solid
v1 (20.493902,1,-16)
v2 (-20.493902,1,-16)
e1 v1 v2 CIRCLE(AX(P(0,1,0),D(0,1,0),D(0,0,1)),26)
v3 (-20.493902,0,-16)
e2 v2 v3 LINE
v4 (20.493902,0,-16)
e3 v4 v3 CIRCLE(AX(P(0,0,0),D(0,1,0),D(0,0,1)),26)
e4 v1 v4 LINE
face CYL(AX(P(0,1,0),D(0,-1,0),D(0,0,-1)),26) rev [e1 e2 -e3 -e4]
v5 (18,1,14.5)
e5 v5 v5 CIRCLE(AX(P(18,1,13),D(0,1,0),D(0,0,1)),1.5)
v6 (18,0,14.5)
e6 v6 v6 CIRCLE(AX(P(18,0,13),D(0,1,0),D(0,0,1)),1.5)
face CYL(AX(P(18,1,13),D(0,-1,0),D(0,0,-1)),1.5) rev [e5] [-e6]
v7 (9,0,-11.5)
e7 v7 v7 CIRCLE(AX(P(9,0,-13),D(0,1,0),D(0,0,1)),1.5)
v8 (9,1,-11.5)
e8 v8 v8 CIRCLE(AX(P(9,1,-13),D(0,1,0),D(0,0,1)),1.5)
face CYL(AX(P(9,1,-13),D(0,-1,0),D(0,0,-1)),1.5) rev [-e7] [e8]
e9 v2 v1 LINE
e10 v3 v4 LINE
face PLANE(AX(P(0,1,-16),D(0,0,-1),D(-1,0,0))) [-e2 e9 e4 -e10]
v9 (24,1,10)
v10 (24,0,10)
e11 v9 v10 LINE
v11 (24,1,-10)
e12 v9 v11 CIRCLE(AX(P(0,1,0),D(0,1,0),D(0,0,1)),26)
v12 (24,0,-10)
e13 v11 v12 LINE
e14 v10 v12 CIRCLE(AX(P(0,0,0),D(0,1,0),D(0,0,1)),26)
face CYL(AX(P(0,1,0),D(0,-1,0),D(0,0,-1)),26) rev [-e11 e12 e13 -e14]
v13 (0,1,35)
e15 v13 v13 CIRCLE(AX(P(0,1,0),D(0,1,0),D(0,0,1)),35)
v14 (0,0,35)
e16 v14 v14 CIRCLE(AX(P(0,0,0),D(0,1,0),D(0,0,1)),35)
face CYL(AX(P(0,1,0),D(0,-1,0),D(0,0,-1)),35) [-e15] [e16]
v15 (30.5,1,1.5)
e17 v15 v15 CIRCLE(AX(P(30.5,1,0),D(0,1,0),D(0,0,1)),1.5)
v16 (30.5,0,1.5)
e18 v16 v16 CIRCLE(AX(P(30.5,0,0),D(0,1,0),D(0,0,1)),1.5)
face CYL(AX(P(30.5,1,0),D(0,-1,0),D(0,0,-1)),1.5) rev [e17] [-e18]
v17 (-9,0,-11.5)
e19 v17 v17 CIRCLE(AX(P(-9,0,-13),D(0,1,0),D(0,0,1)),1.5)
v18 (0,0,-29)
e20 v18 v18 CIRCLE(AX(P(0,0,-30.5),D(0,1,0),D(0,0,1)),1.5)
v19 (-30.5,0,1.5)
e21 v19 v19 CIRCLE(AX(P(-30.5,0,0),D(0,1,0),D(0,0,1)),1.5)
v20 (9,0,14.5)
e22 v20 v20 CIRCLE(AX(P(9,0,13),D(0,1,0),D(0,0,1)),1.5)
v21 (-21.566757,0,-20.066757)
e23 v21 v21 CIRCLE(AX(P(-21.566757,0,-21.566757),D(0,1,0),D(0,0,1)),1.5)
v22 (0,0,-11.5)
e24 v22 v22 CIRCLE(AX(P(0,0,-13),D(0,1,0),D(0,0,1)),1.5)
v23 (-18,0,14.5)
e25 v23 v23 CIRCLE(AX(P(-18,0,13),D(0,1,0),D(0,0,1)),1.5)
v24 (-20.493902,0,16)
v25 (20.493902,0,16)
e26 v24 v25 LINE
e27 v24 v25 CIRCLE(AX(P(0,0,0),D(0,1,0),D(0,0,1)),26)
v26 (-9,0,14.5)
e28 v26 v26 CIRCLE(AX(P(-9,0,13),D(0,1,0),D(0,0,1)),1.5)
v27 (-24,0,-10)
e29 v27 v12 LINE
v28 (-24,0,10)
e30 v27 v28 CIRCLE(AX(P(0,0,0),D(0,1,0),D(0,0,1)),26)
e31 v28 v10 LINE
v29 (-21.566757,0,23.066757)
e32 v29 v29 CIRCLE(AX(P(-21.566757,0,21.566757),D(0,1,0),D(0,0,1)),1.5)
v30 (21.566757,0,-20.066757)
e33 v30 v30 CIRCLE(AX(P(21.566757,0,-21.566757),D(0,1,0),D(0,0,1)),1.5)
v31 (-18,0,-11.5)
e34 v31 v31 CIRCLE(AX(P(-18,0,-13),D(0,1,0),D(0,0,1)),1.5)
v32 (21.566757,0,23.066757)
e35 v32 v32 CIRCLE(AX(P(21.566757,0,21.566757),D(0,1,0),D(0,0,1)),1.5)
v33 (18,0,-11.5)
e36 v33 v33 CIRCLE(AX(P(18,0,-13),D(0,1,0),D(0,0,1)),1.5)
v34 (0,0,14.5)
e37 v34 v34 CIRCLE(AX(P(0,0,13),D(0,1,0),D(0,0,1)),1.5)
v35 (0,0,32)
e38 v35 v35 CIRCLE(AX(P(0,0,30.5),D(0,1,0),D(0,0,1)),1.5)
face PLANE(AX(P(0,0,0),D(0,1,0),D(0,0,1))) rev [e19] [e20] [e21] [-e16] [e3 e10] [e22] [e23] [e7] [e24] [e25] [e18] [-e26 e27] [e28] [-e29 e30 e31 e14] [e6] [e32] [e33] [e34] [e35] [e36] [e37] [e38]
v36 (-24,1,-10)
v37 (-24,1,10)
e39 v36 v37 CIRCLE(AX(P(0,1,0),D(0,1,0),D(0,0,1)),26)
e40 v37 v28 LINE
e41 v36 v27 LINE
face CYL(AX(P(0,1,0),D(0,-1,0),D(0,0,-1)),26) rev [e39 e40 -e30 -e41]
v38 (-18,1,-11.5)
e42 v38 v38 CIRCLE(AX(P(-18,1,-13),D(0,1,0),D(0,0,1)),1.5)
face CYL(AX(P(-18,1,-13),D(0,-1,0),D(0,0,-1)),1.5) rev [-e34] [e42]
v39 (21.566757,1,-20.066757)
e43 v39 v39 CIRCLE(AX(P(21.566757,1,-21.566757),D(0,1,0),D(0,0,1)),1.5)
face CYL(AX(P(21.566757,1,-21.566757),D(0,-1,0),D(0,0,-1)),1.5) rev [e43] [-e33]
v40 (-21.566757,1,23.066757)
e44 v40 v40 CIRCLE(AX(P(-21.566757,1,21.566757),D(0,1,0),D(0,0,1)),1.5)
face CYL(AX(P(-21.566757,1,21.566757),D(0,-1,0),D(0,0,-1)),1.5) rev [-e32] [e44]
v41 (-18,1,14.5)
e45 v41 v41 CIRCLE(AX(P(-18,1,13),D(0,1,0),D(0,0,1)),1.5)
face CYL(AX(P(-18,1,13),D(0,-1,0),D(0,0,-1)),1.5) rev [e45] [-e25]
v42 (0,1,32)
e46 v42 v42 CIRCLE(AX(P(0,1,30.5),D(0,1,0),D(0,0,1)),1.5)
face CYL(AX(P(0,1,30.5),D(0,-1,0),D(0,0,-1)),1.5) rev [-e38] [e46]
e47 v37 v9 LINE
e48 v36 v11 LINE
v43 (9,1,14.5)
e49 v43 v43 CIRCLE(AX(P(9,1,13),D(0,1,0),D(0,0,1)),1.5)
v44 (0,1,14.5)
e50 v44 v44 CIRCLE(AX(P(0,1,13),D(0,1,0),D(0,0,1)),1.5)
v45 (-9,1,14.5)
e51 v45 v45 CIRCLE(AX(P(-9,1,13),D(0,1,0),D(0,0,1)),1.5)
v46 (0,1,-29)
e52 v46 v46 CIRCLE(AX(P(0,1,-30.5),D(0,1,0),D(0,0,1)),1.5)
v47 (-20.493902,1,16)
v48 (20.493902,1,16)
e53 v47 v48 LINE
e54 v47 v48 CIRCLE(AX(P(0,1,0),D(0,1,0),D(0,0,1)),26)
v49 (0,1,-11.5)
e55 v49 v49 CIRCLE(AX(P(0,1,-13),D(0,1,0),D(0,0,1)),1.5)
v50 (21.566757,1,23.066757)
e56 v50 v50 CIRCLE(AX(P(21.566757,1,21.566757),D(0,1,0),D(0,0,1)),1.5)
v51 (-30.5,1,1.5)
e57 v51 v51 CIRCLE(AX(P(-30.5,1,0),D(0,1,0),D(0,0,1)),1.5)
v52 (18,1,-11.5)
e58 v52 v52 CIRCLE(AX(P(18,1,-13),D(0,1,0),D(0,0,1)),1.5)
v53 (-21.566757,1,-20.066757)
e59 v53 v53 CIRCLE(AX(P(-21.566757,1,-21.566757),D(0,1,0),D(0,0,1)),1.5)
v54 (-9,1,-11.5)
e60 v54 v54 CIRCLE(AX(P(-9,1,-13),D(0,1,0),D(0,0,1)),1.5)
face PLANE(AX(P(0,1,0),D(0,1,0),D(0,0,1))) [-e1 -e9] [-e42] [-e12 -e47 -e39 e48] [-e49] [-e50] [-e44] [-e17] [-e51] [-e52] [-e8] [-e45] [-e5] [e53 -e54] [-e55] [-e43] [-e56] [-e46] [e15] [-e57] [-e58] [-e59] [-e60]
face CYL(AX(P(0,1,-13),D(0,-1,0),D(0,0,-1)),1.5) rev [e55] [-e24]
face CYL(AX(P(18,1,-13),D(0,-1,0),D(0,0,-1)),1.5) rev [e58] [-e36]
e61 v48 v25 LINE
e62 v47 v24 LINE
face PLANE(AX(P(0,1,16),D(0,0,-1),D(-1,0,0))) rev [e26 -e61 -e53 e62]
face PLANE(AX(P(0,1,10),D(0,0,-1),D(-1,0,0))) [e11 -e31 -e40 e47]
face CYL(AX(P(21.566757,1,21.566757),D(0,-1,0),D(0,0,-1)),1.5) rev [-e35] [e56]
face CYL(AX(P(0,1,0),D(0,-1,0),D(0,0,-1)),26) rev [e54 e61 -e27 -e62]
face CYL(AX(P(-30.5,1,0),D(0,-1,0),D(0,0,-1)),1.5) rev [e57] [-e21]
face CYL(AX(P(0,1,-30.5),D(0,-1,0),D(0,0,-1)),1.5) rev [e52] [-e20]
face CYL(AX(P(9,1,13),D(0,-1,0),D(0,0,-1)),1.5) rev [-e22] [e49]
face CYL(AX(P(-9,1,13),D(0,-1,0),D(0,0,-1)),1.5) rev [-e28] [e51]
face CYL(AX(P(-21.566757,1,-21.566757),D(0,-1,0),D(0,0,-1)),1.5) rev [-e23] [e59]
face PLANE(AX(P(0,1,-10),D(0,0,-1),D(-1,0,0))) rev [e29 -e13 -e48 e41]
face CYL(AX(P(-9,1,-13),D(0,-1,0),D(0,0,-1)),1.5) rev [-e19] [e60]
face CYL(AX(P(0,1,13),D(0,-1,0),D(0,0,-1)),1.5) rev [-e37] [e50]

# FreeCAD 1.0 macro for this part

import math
import FreeCAD as App
import Part
import Sketcher
from FreeCAD import Vector

doc = App.newDocument("Part")
body = doc.addObject("PartDesign::Body", "Body")

# Sketch on XZ plane
sketch1 = body.newObject("Sketcher::SketchObject", "Sketch")
sketch1.AttachmentSupport = (doc.getObject("XZ_Plane"), [""])
sketch1.MapMode = "FlatFace"
sketch1.addGeometry([
    Part.Circle(Vector(0, 0, 0), Vector(0, 0, 1), 35),  # 0
    Part.Circle(Vector(-21.566757, -21.566757, 0), Vector(0, 0, 1), 1.5),  # 1
    Part.Circle(Vector(-18, -13, 0), Vector(0, 0, 1), 1.5),  # 2
    Part.Circle(Vector(0, -30.5, 0), Vector(0, 0, 1), 1.5),  # 3
    Part.LineSegment(Vector(20.493902, -16, 0), Vector(-20.493902, -16, 0)),  # 4
    Part.ArcOfCircle(Part.Circle(Vector(0, 0, 0), Vector(0, 0, 1), 26), math.radians(-142.020128), math.radians(-37.979872)),  # 5
    Part.Circle(Vector(-9, -13, 0), Vector(0, 0, 1), 1.5),  # 6
    Part.Circle(Vector(0, -13, 0), Vector(0, 0, 1), 1.5),  # 7
    Part.Circle(Vector(-30.5, 0, 0), Vector(0, 0, 1), 1.5),  # 8
    Part.Circle(Vector(-18, 13, 0), Vector(0, 0, 1), 1.5),  # 9
    Part.Circle(Vector(-21.566757, 21.566757, 0), Vector(0, 0, 1), 1.5),  # 10
    Part.Circle(Vector(-9, 13, 0), Vector(0, 0, 1), 1.5),  # 11
    Part.LineSegment(Vector(24, 10, 0), Vector(-24, 10, 0)),  # 12
    Part.ArcOfCircle(Part.Circle(Vector(0, 0, 0), Vector(0, 0, 1), 26), math.radians(157.380135), math.radians(202.619865)),  # 13
    Part.LineSegment(Vector(-24, -10, 0), Vector(24, -10, 0)),  # 14
    Part.ArcOfCircle(Part.Circle(Vector(0, 0, 0), Vector(0, 0, 1), 26), math.radians(-22.619865), math.radians(22.619865)),  # 15
    Part.Circle(Vector(9, -13, 0), Vector(0, 0, 1), 1.5),  # 16
    Part.Circle(Vector(21.566757, -21.566757, 0), Vector(0, 0, 1), 1.5),  # 17
    Part.Circle(Vector(18, -13, 0), Vector(0, 0, 1), 1.5),  # 18
    Part.Circle(Vector(30.5, 0, 0), Vector(0, 0, 1), 1.5),  # 19
    Part.Circle(Vector(0, 13, 0), Vector(0, 0, 1), 1.5),  # 20
    Part.Circle(Vector(9, 13, 0), Vector(0, 0, 1), 1.5),  # 21
    Part.ArcOfCircle(Part.Circle(Vector(0, 0, 0), Vector(0, 0, 1), 26), math.radians(37.979872), math.radians(142.020128)),  # 22
    Part.LineSegment(Vector(-20.493902, 16, 0), Vector(20.493902, 16, 0)),  # 23
    Part.Circle(Vector(0, 30.5, 0), Vector(0, 0, 1), 1.5),  # 24
    Part.Circle(Vector(18, 13, 0), Vector(0, 0, 1), 1.5),  # 25
    Part.Circle(Vector(21.566757, 21.566757, 0), Vector(0, 0, 1), 1.5),  # 26
], False)
sketch1.addConstraint([
    Sketcher.Constraint("Coincident", 4, 1, 5, 2),
    Sketcher.Constraint("Coincident", 5, 1, 4, 2),
    Sketcher.Constraint("Coincident", 12, 2, 13, 1),
    Sketcher.Constraint("Coincident", 13, 2, 14, 1),
    Sketcher.Constraint("Coincident", 14, 2, 15, 1),
    Sketcher.Constraint("Coincident", 15, 2, 12, 1),
    Sketcher.Constraint("Coincident", 22, 1, 23, 2),
    Sketcher.Constraint("Coincident", 23, 1, 22, 2),
    Sketcher.Constraint("Horizontal", 4),
    Sketcher.Constraint("Horizontal", 12),
    Sketcher.Constraint("Horizontal", 14),
    Sketcher.Constraint("Horizontal", 23),
    Sketcher.Constraint("Coincident", 0, 3, -1, 1),
    Sketcher.Constraint("Coincident", 5, 3, -1, 1),
    Sketcher.Constraint("Coincident", 13, 3, -1, 1),
    Sketcher.Constraint("Coincident", 15, 3, -1, 1),
    Sketcher.Constraint("Coincident", 22, 3, -1, 1),
    Sketcher.Constraint("Equal", 1, 2),
    Sketcher.Constraint("Equal", 2, 3),
    Sketcher.Constraint("Equal", 3, 6),
    Sketcher.Constraint("Equal", 6, 7),
    Sketcher.Constraint("Equal", 7, 8),
    Sketcher.Constraint("Equal", 8, 9),
    Sketcher.Constraint("Equal", 9, 10),
    Sketcher.Constraint("Equal", 10, 11),
    Sketcher.Constraint("Equal", 5, 13),
    Sketcher.Constraint("Equal", 13, 15),
    Sketcher.Constraint("Equal", 11, 16),
    Sketcher.Constraint("Equal", 16, 17),
    Sketcher.Constraint("Equal", 17, 18),
    Sketcher.Constraint("Equal", 18, 19),
    Sketcher.Constraint("Equal", 19, 20),
    Sketcher.Constraint("Equal", 20, 21),
    Sketcher.Constraint("Equal", 15, 22),
    Sketcher.Constraint("Equal", 21, 24),
    Sketcher.Constraint("Equal", 24, 25),
    Sketcher.Constraint("Equal", 25, 26),
    Sketcher.Constraint("Symmetric", 11, 3, 16, 3, -1, 1),
    Sketcher.Constraint("Symmetric", 10, 3, 17, 3, -1, 1),
    Sketcher.Constraint("Symmetric", 9, 3, 18, 3, -1, 1),
    Sketcher.Constraint("Symmetric", 8, 3, 19, 3, -1, 1),
    Sketcher.Constraint("Symmetric", 7, 3, 20, 3, -1, 1),
    Sketcher.Constraint("Symmetric", 6, 3, 21, 3, -1, 1),
    Sketcher.Constraint("Symmetric", 3, 3, 24, 3, -1, 1),
    Sketcher.Constraint("Symmetric", 2, 3, 25, 3, -1, 1),
    Sketcher.Constraint("Symmetric", 1, 3, 26, 3, -1, 1),
    Sketcher.Constraint("Symmetric", 6, 3, 16, 3, -2),
    Sketcher.Constraint("Symmetric", 1, 3, 17, 3, -2),
    Sketcher.Constraint("Symmetric", 2, 3, 18, 3, -2),
    Sketcher.Constraint("PointOnObject", 3, 3, -2),
    Sketcher.Constraint("PointOnObject", 7, 3, -2),
    Sketcher.Constraint("PointOnObject", 8, 3, -1),
    Sketcher.Constraint("Horizontal", 2, 3, 6, 3),
    Sketcher.Constraint("Horizontal", 6, 3, 7, 3),
    Sketcher.Constraint("Vertical", 12, 2, 13, 2),
    Sketcher.Constraint("Vertical", 4, 1, 22, 1),
    Sketcher.Constraint("Diameter", 0, 70.0),
    Sketcher.Constraint("Diameter", 1, 3.0),
    Sketcher.Constraint("Radius", 5, 26.0),
    Sketcher.Constraint("DistanceX", 12, 2, 12, 1, 48.0),
    Sketcher.Constraint("DistanceX", 2, 3, -1, 1, 18.0),
    Sketcher.Constraint("DistanceY", 2, 3, -1, 1, 13.0),
    Sketcher.Constraint("DistanceX", 6, 3, -1, 1, 9.0),
    Sketcher.Constraint("DistanceY", 4, 1, -1, 1, 16.0),
    Sketcher.Constraint("DistanceY", 3, 3, -1, 1, 30.5),
    Sketcher.Constraint("DistanceX", 8, 3, -1, 1, 30.5),
    Sketcher.Constraint("DistanceX", 1, 3, -1, 1, 21.566757),
    Sketcher.Constraint("DistanceY", 1, 3, -1, 1, 21.566757),
])
pad1 = body.newObject("PartDesign::Pad", "Pad")
pad1.Profile = sketch1
pad1.Length = 1
pad1.Reversed = True

doc.recompute()
